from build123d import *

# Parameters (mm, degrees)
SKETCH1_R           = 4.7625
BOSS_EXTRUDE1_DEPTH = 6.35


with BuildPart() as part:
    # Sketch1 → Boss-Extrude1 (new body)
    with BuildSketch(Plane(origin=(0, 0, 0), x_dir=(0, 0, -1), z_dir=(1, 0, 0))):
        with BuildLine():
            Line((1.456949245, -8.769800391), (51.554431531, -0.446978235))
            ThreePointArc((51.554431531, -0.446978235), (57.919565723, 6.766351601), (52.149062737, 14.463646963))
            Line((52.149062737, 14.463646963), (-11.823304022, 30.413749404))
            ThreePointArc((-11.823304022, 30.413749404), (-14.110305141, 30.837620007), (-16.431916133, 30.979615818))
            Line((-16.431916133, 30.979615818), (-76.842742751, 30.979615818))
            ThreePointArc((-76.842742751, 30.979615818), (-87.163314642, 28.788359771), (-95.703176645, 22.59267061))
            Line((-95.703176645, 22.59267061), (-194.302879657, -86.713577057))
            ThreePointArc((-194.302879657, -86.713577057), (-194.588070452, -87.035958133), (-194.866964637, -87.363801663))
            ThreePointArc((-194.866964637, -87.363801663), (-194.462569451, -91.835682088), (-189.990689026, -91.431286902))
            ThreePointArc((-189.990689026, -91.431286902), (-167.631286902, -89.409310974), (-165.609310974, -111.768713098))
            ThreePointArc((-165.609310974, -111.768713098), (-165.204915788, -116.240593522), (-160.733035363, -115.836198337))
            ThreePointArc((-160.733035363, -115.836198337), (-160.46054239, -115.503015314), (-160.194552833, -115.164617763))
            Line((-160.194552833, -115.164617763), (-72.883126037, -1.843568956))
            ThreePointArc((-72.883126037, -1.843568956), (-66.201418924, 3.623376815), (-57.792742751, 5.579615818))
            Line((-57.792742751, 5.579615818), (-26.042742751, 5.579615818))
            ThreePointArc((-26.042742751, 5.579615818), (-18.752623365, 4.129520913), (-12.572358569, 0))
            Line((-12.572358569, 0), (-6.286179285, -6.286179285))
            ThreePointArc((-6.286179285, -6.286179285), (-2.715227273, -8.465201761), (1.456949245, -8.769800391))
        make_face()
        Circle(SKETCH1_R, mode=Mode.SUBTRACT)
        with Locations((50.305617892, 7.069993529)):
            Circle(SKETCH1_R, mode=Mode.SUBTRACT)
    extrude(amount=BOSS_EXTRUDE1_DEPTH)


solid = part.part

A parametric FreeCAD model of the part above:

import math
import FreeCAD as App
import Part
import Sketcher

V = App.Vector
Q = App.Units.Quantity

doc = App.newDocument("Part")
params = doc.addObject("Spreadsheet::Sheet", "Params")
for row, (alias, value) in enumerate([
    ("sketch1_radius", "1 in"),
    ("sketch1_radius2", "0.3 in"),
    ("sketch1_radius3", "0.75 in"),
    ("sketch1_radius4", "0.75 in"),
    ("sketch1_radius5", "0.75 in"),
    ("pad1_length", "0.25 in"),
], start=1):
    params.set(f"A{row}", alias)
    params.set(f"B{row}", "=" + value)
    params.setAlias(f"B{row}", alias)

body = doc.addObject("PartDesign::Body", "Body")

# Sketch on YZ plane
sketch1 = body.newObject("Sketcher::SketchObject", "Sketch")
sketch1.AttachmentSupport = (doc.getObject("YZ_Plane"), [""])
sketch1.MapMode = "FlatFace"
sketch1.addGeometry(Part.LineSegment(V(-8.7698, -1.456949, 0), V(-0.446978, -51.554432, 0)), False)
sketch1.addGeometry(Part.ArcOfCircle(Part.Circle(V(7.069994, -50.305618, 0), V(0, 0, 1), 7.62), math.radians(-170.567456), math.radians(-14)), False)
sketch1.addGeometry(Part.LineSegment(V(14.463647, -52.149063, 0), V(30.413749, 11.823304, 0)), False)
sketch1.addGeometry(Part.ArcOfCircle(Part.Circle(V(11.929616, 16.431916, 0), V(0, 0, 1), 19.05), math.radians(-14), math.radians(0)), False)
sketch1.addGeometry(Part.LineSegment(V(30.979616, 16.431916, 0), V(30.979616, 76.842743, 0)), False)
sketch1.addGeometry(Part.ArcOfCircle(Part.Circle(V(5.579616, 76.842743, 0), V(0, 0, 1), 25.4), math.radians(0), math.radians(47.94796)), False)
sketch1.addGeometry(Part.LineSegment(V(22.592671, 95.703177, 0), V(-86.713577, 194.30288, 0)), False)
sketch1.addGeometry(Part.ArcOfCircle(Part.Circle(V(-101.6, 177.799999, 0), V(0, 0, 1), 22.225001), math.radians(47.94796), math.radians(50.167241)), False)
sketch1.addGeometry(Part.ArcOfCircle(Part.Circle(V(-89.397544, 192.428827, 0), V(0, 0, 1), 3.175), math.radians(50.167241), math.radians(230.167241)), False)
sketch1.addGeometry(Part.ArcOfCircle(Part.Circle(V(-101.6, 177.8, 0), V(0, 0, 1), 15.875), math.radians(-129.832759), math.radians(50.167241)), False)
sketch1.addGeometry(Part.ArcOfCircle(Part.Circle(V(-113.802456, 163.171173, 0), V(0, 0, 1), 3.175), math.radians(50.167241), math.radians(230.167241)), False)
sketch1.addGeometry(Part.ArcOfCircle(Part.Circle(V(-101.600002, 177.799998, 0), V(0, 0, 1), 22.224997), math.radians(-129.832759), math.radians(-127.613477)), False)
sketch1.addGeometry(Part.LineSegment(V(-115.164618, 160.194553, 0), V(-1.843569, 72.883126, 0)), False)
sketch1.addGeometry(Part.ArcOfCircle(Part.Circle(V(-13.470384, 57.792743, 0), V(0, 0, 1), 19.05), math.radians(0), math.radians(52.386523)), False)
sketch1.addGeometry(Part.LineSegment(V(5.579616, 57.792743, 0), V(5.579616, 26.042743, 0)), False)
sketch1.addGeometry(Part.ArcOfCircle(Part.Circle(V(-13.470384, 26.042743, 0), V(0, 0, 1), 19.05), math.radians(-45), math.radians(0)), False)
sketch1.addGeometry(Part.LineSegment(V(0, 12.572359, 0), V(-6.286179, 6.286179, 0)), False)
sketch1.addGeometry(Part.ArcOfCircle(Part.Circle(V(0, 0, 0), V(0, 0, 1), 8.89), math.radians(135), math.radians(189.432544)), False)
sketch1.addGeometry(Part.Circle(V(0, 0, 0), V(0, 0, 1), 4.7625), False)
sketch1.addGeometry(Part.Circle(V(7.069994, -50.305618, 0), V(0, 0, 1), 4.7625), False)
sketch1.addConstraint(Sketcher.Constraint("Coincident", 0, 2, 1, 1))
sketch1.addConstraint(Sketcher.Constraint("Coincident", 1, 2, 2, 1))
sketch1.addConstraint(Sketcher.Constraint("Coincident", 2, 2, 3, 1))
sketch1.addConstraint(Sketcher.Constraint("Coincident", 3, 2, 4, 1))
sketch1.addConstraint(Sketcher.Constraint("Coincident", 4, 2, 5, 1))
sketch1.addConstraint(Sketcher.Constraint("Coincident", 5, 2, 6, 1))
sketch1.addConstraint(Sketcher.Constraint("Coincident", 6, 2, 7, 1))
sketch1.addConstraint(Sketcher.Constraint("Coincident", 7, 2, 8, 1))
sketch1.addConstraint(Sketcher.Constraint("Coincident", 8, 2, 9, 2))
sketch1.addConstraint(Sketcher.Constraint("Coincident", 9, 1, 10, 1))
sketch1.addConstraint(Sketcher.Constraint("Coincident", 10, 2, 11, 1))
sketch1.addConstraint(Sketcher.Constraint("Coincident", 11, 2, 12, 1))
sketch1.addConstraint(Sketcher.Constraint("Coincident", 12, 2, 13, 2))
sketch1.addConstraint(Sketcher.Constraint("Coincident", 13, 1, 14, 1))
sketch1.addConstraint(Sketcher.Constraint("Coincident", 14, 2, 15, 2))
sketch1.addConstraint(Sketcher.Constraint("Coincident", 15, 1, 16, 1))
sketch1.addConstraint(Sketcher.Constraint("Coincident", 16, 2, 17, 1))
sketch1.addConstraint(Sketcher.Constraint("Coincident", 17, 2, 0, 1))
sketch1.addConstraint(Sketcher.Constraint("Vertical", 4))
sketch1.addConstraint(Sketcher.Constraint("Vertical", 14))
sketch1.addConstraint(Sketcher.Constraint("Coincident", 17, 3, -1, 1))
sketch1.addConstraint(Sketcher.Constraint("Coincident", 18, 3, -1, 1))
sketch1.addConstraint(Sketcher.Constraint("Coincident", 9, 3, 7, 3))
sketch1.addConstraint(Sketcher.Constraint("Coincident", 11, 3, 7, 3))
sketch1.addConstraint(Sketcher.Constraint("Coincident", 19, 3, 1, 3))
sketch1.addConstraint(Sketcher.Constraint("PointOnObject", 15, 1, -2))
sketch1.addConstraint(Sketcher.Constraint("Radius", 5, Q("1 in")))
sketch1.addConstraint(Sketcher.Constraint("Radius", 1, Q("0.3 in")))
sketch1.addConstraint(Sketcher.Constraint("Radius", 3, Q("0.75 in")))
sketch1.addConstraint(Sketcher.Constraint("Radius", 13, Q("0.75 in")))
sketch1.addConstraint(Sketcher.Constraint("Radius", 15, Q("0.75 in")))
sketch1.addConstraint(Sketcher.Constraint("Radius", 17, Q("0.35 in")))
sketch1.addConstraint(Sketcher.Constraint("Diameter", 18, Q("0.375 in")))
sketch1.addConstraint(Sketcher.Constraint("Diameter", 19, Q("0.375 in")))
sketch1.addConstraint(Sketcher.Constraint("DistanceX", 7, 3, -1, 1, Q("4 in")))
sketch1.addConstraint(Sketcher.Constraint("DistanceY", -1, 1, 7, 3, Q("7 in")))
sketch1.addConstraint(Sketcher.Constraint("Radius", 7, Q("0.875 in")))
sketch1.addConstraint(Sketcher.Constraint("Radius", 8, Q("0.125 in")))
sketch1.addConstraint(Sketcher.Constraint("Radius", 10, Q("0.125 in")))
sketch1.addConstraint(Sketcher.Constraint("DistanceX", 13, 3, 3, 3, Q("1 in")))
sketch1.addConstraint(Sketcher.Constraint("DistanceY", 15, 3, 5, 3, Q("2 in")))
sketch1.addConstraint(Sketcher.Constraint("DistanceY", 14, 2, 14, 1, Q("1.25 in")))
sketch1.addConstraint(Sketcher.Constraint("Distance", 16, Q("0.35 in")))
sketch1.addConstraint(Sketcher.Constraint("DistanceY", 13, 3, 5, 3, Q("0.75 in")))
sketch1.addConstraint(Sketcher.Constraint("DistanceY", 13, 3, 4, 2, Q("0.75 in")))
sketch1.addConstraint(Sketcher.Constraint("DistanceY", 13, 1, 5, 3, Q("0.75 in")))
sketch1.addConstraint(Sketcher.Constraint("DistanceY", 11, 2, 10, 2, Q("0.0212001 in")))
sketch1.addConstraint(Sketcher.Constraint("DistanceX", 7, 2, -1, 1, Q("87.363802 mm")))
sketch1.addConstraint(Sketcher.Constraint("DistanceX", 10, 2, -1, 1, Q("115.836198 mm")))
sketch1.addConstraint(Sketcher.Constraint("DistanceX", 17, 2, -1, 1, Q("8.7698 mm")))
sketch1.addConstraint(Sketcher.Constraint("DistanceY", 4, 1, 4, 2, Q("60.410827 mm")))
sketch1.addConstraint(Sketcher.Constraint("DistanceX", 0, 2, -1, 1, Q("0.446978 mm")))
sketch1.addConstraint(Sketcher.Constraint("DistanceY", 0, 2, -1, 1, Q("51.554432 mm")))
sketch1.addConstraint(Sketcher.Constraint("DistanceX", -1, 1, 2, 2, Q("30.413749 mm")))
sketch1.addConstraint(Sketcher.Constraint("DistanceX", -1, 1, 5, 2, Q("22.592671 mm")))
sketch1.addConstraint(Sketcher.Constraint("DistanceY", -1, 1, 6, 2, Q("194.30288 mm")))
sketch1.addConstraint(Sketcher.Constraint("DistanceY", -1, 1, 8, 2, Q("189.990689 mm")))
sketch1.addConstraint(Sketcher.Constraint("DistanceY", -1, 1, 9, 1, Q("165.609311 mm")))
sketch1.addConstraint(Sketcher.Constraint("DistanceX", 12, 2, -1, 1, Q("1.843569 mm")))
sketch1.addConstraint(Sketcher.Constraint("DistanceY", -1, 1, 15, 1, Q("12.572359 mm")))
sketch1.addConstraint(Sketcher.Constraint("DistanceY", 1, 3, 5, 3, Q("127.148361 mm")))
sketch1.addConstraint(Sketcher.Constraint("DistanceX", 8, 3, 5, 3, Q("94.97716 mm")))
sketch1.addConstraint(Sketcher.Constraint("DistanceY", 3, 3, 8, 3, Q("175.996911 mm")))
sketch1.addConstraint(Sketcher.Constraint("DistanceX", 10, 3, 8, 3, Q("24.404911 mm")))
sketch1.addConstraint(Sketcher.Constraint("DistanceY", 5, 3, 10, 3, Q("86.32843 mm")))
sketch1.addConstraint(Sketcher.Constraint("DistanceY", 1, 2, 0, 2, Q("0.594631 mm")))
sketch1.setExpression("Constraints[26]", "Params.sketch1_radius")
sketch1.setExpression("Constraints[27]", "Params.sketch1_radius2")
sketch1.setExpression("Constraints[28]", "Params.sketch1_radius3")
sketch1.setExpression("Constraints[29]", "Params.sketch1_radius4")
sketch1.setExpression("Constraints[30]", "Params.sketch1_radius5")
pad1 = body.newObject("PartDesign::Pad", "Pad")
pad1.Profile = sketch1
pad1.setExpression("Length", "Params.pad1_length")

doc.recompute()
